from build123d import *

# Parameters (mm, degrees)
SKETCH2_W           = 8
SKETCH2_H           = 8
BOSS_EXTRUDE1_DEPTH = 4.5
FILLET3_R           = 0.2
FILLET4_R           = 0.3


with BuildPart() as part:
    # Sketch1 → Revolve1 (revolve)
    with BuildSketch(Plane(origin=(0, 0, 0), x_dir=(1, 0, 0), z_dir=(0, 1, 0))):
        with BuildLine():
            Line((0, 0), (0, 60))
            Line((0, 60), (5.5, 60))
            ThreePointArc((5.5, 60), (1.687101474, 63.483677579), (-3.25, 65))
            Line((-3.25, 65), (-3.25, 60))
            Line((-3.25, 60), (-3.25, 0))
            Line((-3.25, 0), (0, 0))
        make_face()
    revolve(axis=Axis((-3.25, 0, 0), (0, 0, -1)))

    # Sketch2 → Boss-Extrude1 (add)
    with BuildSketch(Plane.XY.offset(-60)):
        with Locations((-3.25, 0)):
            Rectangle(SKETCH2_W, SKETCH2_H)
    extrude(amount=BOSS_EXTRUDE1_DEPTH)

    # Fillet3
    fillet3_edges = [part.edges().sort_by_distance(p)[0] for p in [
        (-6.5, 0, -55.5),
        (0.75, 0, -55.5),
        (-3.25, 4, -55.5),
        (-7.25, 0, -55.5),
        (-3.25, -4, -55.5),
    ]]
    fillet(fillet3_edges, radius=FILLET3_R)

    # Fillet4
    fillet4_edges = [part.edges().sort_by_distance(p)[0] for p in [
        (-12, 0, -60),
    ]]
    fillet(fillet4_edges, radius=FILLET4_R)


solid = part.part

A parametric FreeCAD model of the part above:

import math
import FreeCAD as App
import Part
import Sketcher


def edges_at(feature, points):
    """Names of the edges that pass closest to the given points."""
    edges = feature.Shape.Edges
    near = lambda p: min(range(len(edges)), key=lambda i: edges[i].distToShape(Part.Vertex(*p))[0])
    return sorted({f"Edge{near(p) + 1}" for p in points})

doc = App.newDocument("Part")
body = doc.addObject("PartDesign::Body", "Body")

# Sketch on XZ plane
sketch1 = body.newObject("Sketcher::SketchObject", "Sketch")
sketch1.AttachmentSupport = (doc.getObject("XZ_Plane"), [""])
sketch1.MapMode = "FlatFace"
sketch1.addGeometry(Part.LineSegment(App.Vector(0, 0, 0), App.Vector(0, -60, 0)), False)
sketch1.addGeometry(Part.LineSegment(App.Vector(0, -60, 0), App.Vector(5.5, -60, 0)), False)
sketch1.addGeometry(Part.ArcOfCircle(Part.Circle(App.Vector(-4.2, -53.3, 0), App.Vector(0, 0, 1), 11.8), math.radians(-86), math.radians(-35)), False)
sketch1.addGeometry(Part.LineSegment(App.Vector(-3.2, -65, 0), App.Vector(-3.2, 0, 0)), False)
sketch1.addGeometry(Part.LineSegment(App.Vector(-3.2, 0, 0), App.Vector(0, 0, 0)), False)
sketch1.addGeometry(Part.LineSegment(App.Vector(-3.2, 0, 0), App.Vector(-3.2, -65, 0)), True)  # axis
sketch1.addConstraint(Sketcher.Constraint("Coincident", 0, 2, 1, 1))
sketch1.addConstraint(Sketcher.Constraint("Coincident", 1, 2, 2, 2))
sketch1.addConstraint(Sketcher.Constraint("Coincident", 2, 1, 3, 1))
sketch1.addConstraint(Sketcher.Constraint("Coincident", 3, 2, 4, 1))
sketch1.addConstraint(Sketcher.Constraint("Coincident", 4, 2, 0, 1))
sketch1.addConstraint(Sketcher.Constraint("Vertical", 0))
sketch1.addConstraint(Sketcher.Constraint("Horizontal", 1))
sketch1.addConstraint(Sketcher.Constraint("Vertical", 3))
sketch1.addConstraint(Sketcher.Constraint("Horizontal", 4))
sketch1.addConstraint(Sketcher.Constraint("Vertical", 5))
sketch1.addConstraint(Sketcher.Constraint("Coincident", 4, 2, -1, 1))
sketch1.addConstraint(Sketcher.Constraint("Coincident", 5, 1, 3, 2))
sketch1.addConstraint(Sketcher.Constraint("Equal", 3, 5))
sketch1.addConstraint(Sketcher.Constraint("DistanceY", 0, 2, 0, 1, 60.0))
sketch1.addConstraint(Sketcher.Constraint("DistanceY", 3, 1, 3, 2, 65.0))
sketch1.addConstraint(Sketcher.Constraint("DistanceX", 1, 1, 1, 2, 5.5))
sketch1.addConstraint(Sketcher.Constraint("DistanceX", 4, 1, 4, 2, 3.25))
sketch1.addConstraint(Sketcher.Constraint("Radius", 2, 11.771995))
revolution = body.newObject("PartDesign::Revolution", "Revolution")
revolution.Profile = sketch1
revolution.ReferenceAxis = (sketch1, ["Axis0"])
revolution.Angle = 360

# Sketch on XY plane
sketch2 = body.newObject("Sketcher::SketchObject", "Sketch001")
sketch2.AttachmentSupport = (doc.getObject("XY_Plane"), [""])
sketch2.MapMode = "FlatFace"
sketch2.AttachmentOffset = App.Placement(App.Vector(0, 0, -60), App.Rotation())
sketch2.addGeometry(Part.LineSegment(App.Vector(-7, 4, 0), App.Vector(-7, -4, 0)), False)
sketch2.addGeometry(Part.LineSegment(App.Vector(-7, -4, 0), App.Vector(1, -4, 0)), False)
sketch2.addGeometry(Part.LineSegment(App.Vector(1, -4, 0), App.Vector(1, 4, 0)), False)
sketch2.addGeometry(Part.LineSegment(App.Vector(1, 4, 0), App.Vector(-7, 4, 0)), False)
sketch2.addConstraint(Sketcher.Constraint("Coincident", 0, 2, 1, 1))
sketch2.addConstraint(Sketcher.Constraint("Coincident", 1, 2, 2, 1))
sketch2.addConstraint(Sketcher.Constraint("Coincident", 2, 2, 3, 1))
sketch2.addConstraint(Sketcher.Constraint("Coincident", 3, 2, 0, 1))
sketch2.addConstraint(Sketcher.Constraint("Vertical", 0))
sketch2.addConstraint(Sketcher.Constraint("Horizontal", 1))
sketch2.addConstraint(Sketcher.Constraint("Vertical", 2))
sketch2.addConstraint(Sketcher.Constraint("Horizontal", 3))
sketch2.addConstraint(Sketcher.Constraint("Equal", 3, 0))
sketch2.addConstraint(Sketcher.Constraint("DistanceX", 1, 1, 1, 2, 8.0))
sketch2.addConstraint(Sketcher.Constraint("DistanceY", 0, 2, -1, 1, 4.0))
sketch2.addConstraint(Sketcher.Constraint("DistanceX", 0, 2, -1, 1, 7.25))
pad1 = body.newObject("PartDesign::Pad", "Pad")
pad1.Profile = sketch2
pad1.Length = 4.5
doc.recompute()

fillet = body.newObject("PartDesign::Fillet", "Fillet")
fillet.Base = (pad1, edges_at(pad1, [
    (-6.5, 0, -55.5),
    (0.75, 0, -55.5),
    (-3.25, 4, -55.5),
    (-7.25, 0, -55.5),
    (-3.25, -4, -55.5),
]))
fillet.Radius = 0.2
doc.recompute()

fillet2 = body.newObject("PartDesign::Fillet", "Fillet001")
fillet2.Base = (fillet, edges_at(fillet, [(-12, 0, -60)]))
fillet2.Radius = 0.3

doc.recompute()
